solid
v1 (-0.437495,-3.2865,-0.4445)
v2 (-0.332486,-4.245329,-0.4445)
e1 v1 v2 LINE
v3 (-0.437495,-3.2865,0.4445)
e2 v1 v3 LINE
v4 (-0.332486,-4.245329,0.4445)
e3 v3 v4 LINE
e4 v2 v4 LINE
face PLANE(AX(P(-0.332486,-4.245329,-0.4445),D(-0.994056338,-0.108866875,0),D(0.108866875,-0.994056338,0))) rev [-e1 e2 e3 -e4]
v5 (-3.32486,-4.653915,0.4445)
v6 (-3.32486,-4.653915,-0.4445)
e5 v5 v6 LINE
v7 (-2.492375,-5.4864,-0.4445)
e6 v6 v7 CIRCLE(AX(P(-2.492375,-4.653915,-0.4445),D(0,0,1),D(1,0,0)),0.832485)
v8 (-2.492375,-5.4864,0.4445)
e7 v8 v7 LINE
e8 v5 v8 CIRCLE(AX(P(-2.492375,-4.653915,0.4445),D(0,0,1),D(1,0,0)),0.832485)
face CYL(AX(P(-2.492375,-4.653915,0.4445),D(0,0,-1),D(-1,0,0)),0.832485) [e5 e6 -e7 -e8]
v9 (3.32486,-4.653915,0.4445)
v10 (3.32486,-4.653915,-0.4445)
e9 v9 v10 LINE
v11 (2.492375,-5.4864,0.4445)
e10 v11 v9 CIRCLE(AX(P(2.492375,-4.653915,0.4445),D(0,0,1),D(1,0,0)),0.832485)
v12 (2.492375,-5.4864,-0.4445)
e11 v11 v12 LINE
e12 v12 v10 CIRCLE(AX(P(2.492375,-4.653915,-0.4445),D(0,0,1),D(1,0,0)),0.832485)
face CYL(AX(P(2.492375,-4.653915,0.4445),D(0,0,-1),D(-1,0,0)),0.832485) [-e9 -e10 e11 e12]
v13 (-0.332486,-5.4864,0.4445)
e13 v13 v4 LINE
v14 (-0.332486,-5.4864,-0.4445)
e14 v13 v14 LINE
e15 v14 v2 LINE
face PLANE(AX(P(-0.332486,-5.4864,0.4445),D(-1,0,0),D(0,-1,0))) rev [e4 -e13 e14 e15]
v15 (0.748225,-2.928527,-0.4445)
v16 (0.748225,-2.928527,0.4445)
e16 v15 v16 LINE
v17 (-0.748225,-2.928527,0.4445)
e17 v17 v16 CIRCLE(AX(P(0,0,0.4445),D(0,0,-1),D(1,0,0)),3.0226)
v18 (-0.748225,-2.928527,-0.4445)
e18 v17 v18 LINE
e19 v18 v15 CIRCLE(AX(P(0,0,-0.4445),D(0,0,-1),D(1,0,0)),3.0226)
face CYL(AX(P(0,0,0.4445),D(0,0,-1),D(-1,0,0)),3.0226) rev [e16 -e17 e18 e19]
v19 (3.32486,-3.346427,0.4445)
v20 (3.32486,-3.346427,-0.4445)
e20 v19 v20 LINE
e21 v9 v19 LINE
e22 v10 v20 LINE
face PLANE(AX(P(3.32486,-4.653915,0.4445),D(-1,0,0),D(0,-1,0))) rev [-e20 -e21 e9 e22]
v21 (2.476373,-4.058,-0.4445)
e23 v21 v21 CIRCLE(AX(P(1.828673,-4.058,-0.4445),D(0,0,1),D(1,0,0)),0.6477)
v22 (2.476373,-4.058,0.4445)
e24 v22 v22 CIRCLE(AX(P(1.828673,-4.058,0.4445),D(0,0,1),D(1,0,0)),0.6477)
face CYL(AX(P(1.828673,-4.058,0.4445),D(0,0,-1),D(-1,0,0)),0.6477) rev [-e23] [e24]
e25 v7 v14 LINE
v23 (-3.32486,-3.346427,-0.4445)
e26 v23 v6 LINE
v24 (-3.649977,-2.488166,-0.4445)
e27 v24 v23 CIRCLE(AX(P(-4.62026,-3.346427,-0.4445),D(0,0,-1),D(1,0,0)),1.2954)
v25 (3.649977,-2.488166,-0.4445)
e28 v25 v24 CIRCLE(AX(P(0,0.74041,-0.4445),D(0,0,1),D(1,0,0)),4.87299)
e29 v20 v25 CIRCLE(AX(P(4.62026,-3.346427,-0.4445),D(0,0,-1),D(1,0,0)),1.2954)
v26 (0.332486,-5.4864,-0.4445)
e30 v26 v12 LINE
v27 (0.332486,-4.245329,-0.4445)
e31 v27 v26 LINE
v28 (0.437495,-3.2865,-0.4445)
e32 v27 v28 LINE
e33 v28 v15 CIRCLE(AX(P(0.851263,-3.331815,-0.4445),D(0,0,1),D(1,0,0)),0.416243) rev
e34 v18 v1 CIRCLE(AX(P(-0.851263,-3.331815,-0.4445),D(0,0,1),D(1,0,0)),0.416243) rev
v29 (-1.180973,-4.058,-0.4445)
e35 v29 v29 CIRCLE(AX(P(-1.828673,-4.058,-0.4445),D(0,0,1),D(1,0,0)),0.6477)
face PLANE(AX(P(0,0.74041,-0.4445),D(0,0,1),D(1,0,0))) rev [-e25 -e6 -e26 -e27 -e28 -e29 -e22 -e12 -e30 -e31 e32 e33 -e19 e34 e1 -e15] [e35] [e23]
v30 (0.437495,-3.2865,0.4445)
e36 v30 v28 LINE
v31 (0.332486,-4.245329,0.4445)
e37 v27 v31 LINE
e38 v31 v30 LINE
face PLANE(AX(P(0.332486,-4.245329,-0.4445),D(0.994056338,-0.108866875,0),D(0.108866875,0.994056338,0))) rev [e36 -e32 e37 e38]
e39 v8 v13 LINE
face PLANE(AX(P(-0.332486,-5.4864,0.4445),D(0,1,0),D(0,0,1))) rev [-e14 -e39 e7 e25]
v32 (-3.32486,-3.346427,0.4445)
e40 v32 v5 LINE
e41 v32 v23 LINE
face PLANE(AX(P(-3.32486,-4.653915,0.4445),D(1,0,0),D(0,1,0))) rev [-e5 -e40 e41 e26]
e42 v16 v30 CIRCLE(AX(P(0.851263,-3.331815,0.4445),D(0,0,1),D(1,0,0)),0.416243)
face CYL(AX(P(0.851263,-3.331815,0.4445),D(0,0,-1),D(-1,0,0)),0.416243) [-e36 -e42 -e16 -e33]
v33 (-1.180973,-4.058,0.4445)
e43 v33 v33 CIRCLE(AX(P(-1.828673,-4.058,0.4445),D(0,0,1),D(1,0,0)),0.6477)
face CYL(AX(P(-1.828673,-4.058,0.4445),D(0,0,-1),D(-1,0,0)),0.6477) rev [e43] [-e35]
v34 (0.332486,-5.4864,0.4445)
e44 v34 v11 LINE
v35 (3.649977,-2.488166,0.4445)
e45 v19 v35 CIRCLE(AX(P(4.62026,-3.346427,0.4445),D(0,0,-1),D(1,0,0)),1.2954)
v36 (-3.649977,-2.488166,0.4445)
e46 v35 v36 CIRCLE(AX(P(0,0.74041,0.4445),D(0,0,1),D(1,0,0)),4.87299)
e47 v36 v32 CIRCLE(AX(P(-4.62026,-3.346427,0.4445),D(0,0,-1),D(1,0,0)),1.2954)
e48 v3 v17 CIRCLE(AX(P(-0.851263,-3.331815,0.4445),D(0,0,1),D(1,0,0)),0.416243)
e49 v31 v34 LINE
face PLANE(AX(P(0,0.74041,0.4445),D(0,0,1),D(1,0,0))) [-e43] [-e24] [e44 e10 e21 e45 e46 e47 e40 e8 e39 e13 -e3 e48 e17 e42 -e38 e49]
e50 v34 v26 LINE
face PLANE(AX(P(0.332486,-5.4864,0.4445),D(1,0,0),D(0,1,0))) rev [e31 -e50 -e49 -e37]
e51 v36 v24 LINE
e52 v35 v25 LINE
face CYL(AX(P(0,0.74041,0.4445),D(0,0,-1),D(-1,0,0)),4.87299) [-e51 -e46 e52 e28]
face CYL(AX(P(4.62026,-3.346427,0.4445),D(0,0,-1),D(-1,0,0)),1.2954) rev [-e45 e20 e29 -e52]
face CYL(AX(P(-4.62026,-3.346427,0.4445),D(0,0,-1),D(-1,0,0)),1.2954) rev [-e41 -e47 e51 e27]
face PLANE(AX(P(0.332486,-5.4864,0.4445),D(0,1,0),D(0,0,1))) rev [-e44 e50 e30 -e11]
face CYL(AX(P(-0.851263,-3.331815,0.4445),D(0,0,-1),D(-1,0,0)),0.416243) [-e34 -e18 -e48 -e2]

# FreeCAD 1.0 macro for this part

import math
import FreeCAD as App
import Part
import Sketcher

V = App.Vector
Q = App.Units.Quantity


def edges_at(feature, points):
    """Names of the edges that pass closest to the given points."""
    edges = feature.Shape.Edges
    near = lambda p: min(range(len(edges)), key=lambda i: edges[i].distToShape(Part.Vertex(*p))[0])
    return sorted({f"Edge{near(p) + 1}" for p in points})


def add_polygon(sketch, points):
    """Adds a closed chain of lines whose ends are joined by coincident constraints."""
    first, n = sketch.GeometryCount, len(points)
    for a, b in zip(points, points[1:] + points[:1]):
        sketch.addGeometry(Part.LineSegment(App.Vector(*a, 0), App.Vector(*b, 0)), False)
    for i in range(n):
        sketch.addConstraint(Sketcher.Constraint("Coincident", first + i, 2, first + (i + 1) % n, 1))

doc = App.newDocument("Part")
params = doc.addObject("Spreadsheet::Sheet", "Params")
for row, (alias, value) in enumerate([
    ("sketch1_diameter", "0.051 in"),
    ("sketch1_radius", "0.051 in"),
    ("sketch1_radius2", "0.119 in"),
    ("pad1_length", "0.035 in"),
    ("fillet_radius", "0.416243 mm"),
], start=1):
    params.set(f"A{row}", alias)
    params.set(f"B{row}", "=" + value)
    params.setAlias(f"B{row}", alias)

body = doc.addObject("PartDesign::Body", "Body")

# Sketch on XY plane
sketch1 = body.newObject("Sketcher::SketchObject", "Sketch")
sketch1.AttachmentSupport = (doc.getObject("XY_Plane"), [""])
sketch1.MapMode = "FlatFace"
sketch1.addGeometry(Part.LineSegment(V(3.3, -4.7, 0), V(3.3, -3.3, 0)), False)
sketch1.addGeometry(Part.ArcOfCircle(Part.Circle(V(4.6, -3.3, 0), V(0, 0, 1), 1.3), math.radians(139), math.radians(180)), False)
sketch1.addGeometry(Part.ArcOfCircle(Part.Circle(V(0, 0.7, 0), V(0, 0, 1), 4.9), math.radians(-41), math.radians(221)), False)
sketch1.addGeometry(Part.ArcOfCircle(Part.Circle(V(-4.6, -3.3, 0), V(0, 0, 1), 1.3), math.radians(0), math.radians(41)), False)
sketch1.addGeometry(Part.LineSegment(V(-3.3, -3.3, 0), V(-3.3, -4.7, 0)), False)
sketch1.addGeometry(Part.ArcOfCircle(Part.Circle(V(-2.5, -4.7, 0), V(0, 0, 1), 0.8), math.radians(180), math.radians(270)), False)
sketch1.addGeometry(Part.LineSegment(V(-2.5, -5.5, 0), V(-0.3, -5.5, 0)), False)
sketch1.addGeometry(Part.LineSegment(V(-0.3, -5.5, 0), V(-0.3, -3, 0)), False)
sketch1.addGeometry(Part.ArcOfCircle(Part.Circle(V(0, 0, 0), V(0, 0, 1), 3), math.radians(-84), math.radians(264)), False)
sketch1.addGeometry(Part.LineSegment(V(0.3, -3, 0), V(0.3, -5.5, 0)), False)
sketch1.addGeometry(Part.LineSegment(V(0.3, -5.5, 0), V(2.5, -5.5, 0)), False)
sketch1.addGeometry(Part.ArcOfCircle(Part.Circle(V(2.5, -4.7, 0), V(0, 0, 1), 0.8), math.radians(-90), math.radians(0)), False)
sketch1.addGeometry(Part.Circle(V(-1.8, -4.1, 0), V(0, 0, 1), 0.6), False)
sketch1.addGeometry(Part.Circle(V(1.8, -4.1, 0), V(0, 0, 1), 0.6), False)
sketch1.addConstraint(Sketcher.Constraint("Tangent", 0, 2, 1, 2))
sketch1.addConstraint(Sketcher.Constraint("Tangent", 1, 1, 2, 1))
sketch1.addConstraint(Sketcher.Constraint("Tangent", 2, 2, 3, 2))
sketch1.addConstraint(Sketcher.Constraint("Tangent", 3, 1, 4, 1))
sketch1.addConstraint(Sketcher.Constraint("Tangent", 4, 2, 5, 1))
sketch1.addConstraint(Sketcher.Constraint("Tangent", 5, 2, 6, 1))
sketch1.addConstraint(Sketcher.Constraint("Coincident", 6, 2, 7, 1))
sketch1.addConstraint(Sketcher.Constraint("Coincident", 7, 2, 8, 2))
sketch1.addConstraint(Sketcher.Constraint("Coincident", 8, 1, 9, 1))
sketch1.addConstraint(Sketcher.Constraint("Coincident", 9, 2, 10, 1))
sketch1.addConstraint(Sketcher.Constraint("Tangent", 10, 2, 11, 1))
sketch1.addConstraint(Sketcher.Constraint("Tangent", 11, 2, 0, 1))
sketch1.addConstraint(Sketcher.Constraint("Vertical", 0))
sketch1.addConstraint(Sketcher.Constraint("Vertical", 4))
sketch1.addConstraint(Sketcher.Constraint("Horizontal", 6))
sketch1.addConstraint(Sketcher.Constraint("Vertical", 7))
sketch1.addConstraint(Sketcher.Constraint("Vertical", 9))
sketch1.addConstraint(Sketcher.Constraint("Horizontal", 10))
sketch1.addConstraint(Sketcher.Constraint("Coincident", 8, 3, -1, 1))
sketch1.addConstraint(Sketcher.Constraint("Equal", 1, 3))
sketch1.addConstraint(Sketcher.Constraint("Equal", 5, 11))
sketch1.addConstraint(Sketcher.Constraint("Equal", 12, 13))
sketch1.addConstraint(Sketcher.Constraint("Symmetric", 1, 3, 3, 3, -2))
sketch1.addConstraint(Sketcher.Constraint("Symmetric", 12, 3, 13, 3, -2))
sketch1.addConstraint(Sketcher.Constraint("Symmetric", 6, 2, 9, 2, -2))
sketch1.addConstraint(Sketcher.Constraint("Diameter", 12, Q("0.051 in")))
sketch1.addConstraint(Sketcher.Constraint("Radius", 1, Q("0.051 in")))
sketch1.addConstraint(Sketcher.Constraint("Radius", 8, Q("0.119 in")))
sketch1.addConstraint(Sketcher.Constraint("DistanceY", 5, 2, -1, 1, Q("0.216 in")))
sketch1.addConstraint(Sketcher.Constraint("Radius", 2, Q("4.87299 mm")))
sketch1.addConstraint(Sketcher.Constraint("DistanceX", -1, 1, 1, 3, Q("0.1819 in")))
sketch1.addConstraint(Sketcher.Constraint("Radius", 5, Q("0.832485 mm")))
sketch1.addConstraint(Sketcher.Constraint("DistanceX", 6, 1, 6, 2, Q("2.159889 mm")))
sketch1.addConstraint(Sketcher.Constraint("DistanceY", 0, 1, 0, 2, Q("1.307488 mm")))
sketch1.addConstraint(Sketcher.Constraint("DistanceY", 12, 3, -1, 1, Q("4.058 mm")))
sketch1.addConstraint(Sketcher.Constraint("DistanceX", 12, 3, 11, 3, Q("4.321048 mm")))
sketch1.setExpression("Constraints[25]", "Params.sketch1_diameter")
sketch1.setExpression("Constraints[26]", "Params.sketch1_radius")
sketch1.setExpression("Constraints[27]", "Params.sketch1_radius2")
pad1 = body.newObject("PartDesign::Pad", "Pad")
pad1.Profile = sketch1
pad1.setExpression("Length", "Params.pad1_length")
pad1.Midplane = True

# Sketch on XY plane
sketch2 = body.newObject("Sketcher::SketchObject", "Sketch001")
sketch2.AttachmentSupport = (doc.getObject("XY_Plane"), [""])
sketch2.MapMode = "FlatFace"
add_polygon(sketch2, [(-0.8, 0), (-0.3, -4.2), (0.3, -4.2), (0.8, 0)])  # lines 0-3
sketch2.addConstraint(Sketcher.Constraint("Horizontal", 1))
sketch2.addConstraint(Sketcher.Constraint("Horizontal", 3))
sketch2.addConstraint(Sketcher.Constraint("Symmetric", 2, 2, 3, 2, -1, 1))
sketch2.addConstraint(Sketcher.Constraint("Equal", 0, 2))
sketch2.addConstraint(Sketcher.Constraint("Angle", 0, Q("-83.75 deg")))
sketch2.addConstraint(Sketcher.Constraint("DistanceX", 3, 2, 3, 1, Q("1.59485 mm")))
sketch2.addConstraint(Sketcher.Constraint("DistanceX", 1, 1, 1, 2, Q("0.664972 mm")))
pocket1 = body.newObject("PartDesign::Pocket", "Pocket")
pocket1.Profile = sketch2
pocket1.Type = "ThroughAll"
pocket1.Midplane = True
doc.recompute()

fillet = body.newObject("PartDesign::Fillet", "Fillet")
fillet.Base = (pocket1, edges_at(pocket1, [(-0.47, -2.986, 0), (0.47, -2.986, 0)]))
fillet.setExpression("Radius", "Params.fillet_radius")

doc.recompute()
